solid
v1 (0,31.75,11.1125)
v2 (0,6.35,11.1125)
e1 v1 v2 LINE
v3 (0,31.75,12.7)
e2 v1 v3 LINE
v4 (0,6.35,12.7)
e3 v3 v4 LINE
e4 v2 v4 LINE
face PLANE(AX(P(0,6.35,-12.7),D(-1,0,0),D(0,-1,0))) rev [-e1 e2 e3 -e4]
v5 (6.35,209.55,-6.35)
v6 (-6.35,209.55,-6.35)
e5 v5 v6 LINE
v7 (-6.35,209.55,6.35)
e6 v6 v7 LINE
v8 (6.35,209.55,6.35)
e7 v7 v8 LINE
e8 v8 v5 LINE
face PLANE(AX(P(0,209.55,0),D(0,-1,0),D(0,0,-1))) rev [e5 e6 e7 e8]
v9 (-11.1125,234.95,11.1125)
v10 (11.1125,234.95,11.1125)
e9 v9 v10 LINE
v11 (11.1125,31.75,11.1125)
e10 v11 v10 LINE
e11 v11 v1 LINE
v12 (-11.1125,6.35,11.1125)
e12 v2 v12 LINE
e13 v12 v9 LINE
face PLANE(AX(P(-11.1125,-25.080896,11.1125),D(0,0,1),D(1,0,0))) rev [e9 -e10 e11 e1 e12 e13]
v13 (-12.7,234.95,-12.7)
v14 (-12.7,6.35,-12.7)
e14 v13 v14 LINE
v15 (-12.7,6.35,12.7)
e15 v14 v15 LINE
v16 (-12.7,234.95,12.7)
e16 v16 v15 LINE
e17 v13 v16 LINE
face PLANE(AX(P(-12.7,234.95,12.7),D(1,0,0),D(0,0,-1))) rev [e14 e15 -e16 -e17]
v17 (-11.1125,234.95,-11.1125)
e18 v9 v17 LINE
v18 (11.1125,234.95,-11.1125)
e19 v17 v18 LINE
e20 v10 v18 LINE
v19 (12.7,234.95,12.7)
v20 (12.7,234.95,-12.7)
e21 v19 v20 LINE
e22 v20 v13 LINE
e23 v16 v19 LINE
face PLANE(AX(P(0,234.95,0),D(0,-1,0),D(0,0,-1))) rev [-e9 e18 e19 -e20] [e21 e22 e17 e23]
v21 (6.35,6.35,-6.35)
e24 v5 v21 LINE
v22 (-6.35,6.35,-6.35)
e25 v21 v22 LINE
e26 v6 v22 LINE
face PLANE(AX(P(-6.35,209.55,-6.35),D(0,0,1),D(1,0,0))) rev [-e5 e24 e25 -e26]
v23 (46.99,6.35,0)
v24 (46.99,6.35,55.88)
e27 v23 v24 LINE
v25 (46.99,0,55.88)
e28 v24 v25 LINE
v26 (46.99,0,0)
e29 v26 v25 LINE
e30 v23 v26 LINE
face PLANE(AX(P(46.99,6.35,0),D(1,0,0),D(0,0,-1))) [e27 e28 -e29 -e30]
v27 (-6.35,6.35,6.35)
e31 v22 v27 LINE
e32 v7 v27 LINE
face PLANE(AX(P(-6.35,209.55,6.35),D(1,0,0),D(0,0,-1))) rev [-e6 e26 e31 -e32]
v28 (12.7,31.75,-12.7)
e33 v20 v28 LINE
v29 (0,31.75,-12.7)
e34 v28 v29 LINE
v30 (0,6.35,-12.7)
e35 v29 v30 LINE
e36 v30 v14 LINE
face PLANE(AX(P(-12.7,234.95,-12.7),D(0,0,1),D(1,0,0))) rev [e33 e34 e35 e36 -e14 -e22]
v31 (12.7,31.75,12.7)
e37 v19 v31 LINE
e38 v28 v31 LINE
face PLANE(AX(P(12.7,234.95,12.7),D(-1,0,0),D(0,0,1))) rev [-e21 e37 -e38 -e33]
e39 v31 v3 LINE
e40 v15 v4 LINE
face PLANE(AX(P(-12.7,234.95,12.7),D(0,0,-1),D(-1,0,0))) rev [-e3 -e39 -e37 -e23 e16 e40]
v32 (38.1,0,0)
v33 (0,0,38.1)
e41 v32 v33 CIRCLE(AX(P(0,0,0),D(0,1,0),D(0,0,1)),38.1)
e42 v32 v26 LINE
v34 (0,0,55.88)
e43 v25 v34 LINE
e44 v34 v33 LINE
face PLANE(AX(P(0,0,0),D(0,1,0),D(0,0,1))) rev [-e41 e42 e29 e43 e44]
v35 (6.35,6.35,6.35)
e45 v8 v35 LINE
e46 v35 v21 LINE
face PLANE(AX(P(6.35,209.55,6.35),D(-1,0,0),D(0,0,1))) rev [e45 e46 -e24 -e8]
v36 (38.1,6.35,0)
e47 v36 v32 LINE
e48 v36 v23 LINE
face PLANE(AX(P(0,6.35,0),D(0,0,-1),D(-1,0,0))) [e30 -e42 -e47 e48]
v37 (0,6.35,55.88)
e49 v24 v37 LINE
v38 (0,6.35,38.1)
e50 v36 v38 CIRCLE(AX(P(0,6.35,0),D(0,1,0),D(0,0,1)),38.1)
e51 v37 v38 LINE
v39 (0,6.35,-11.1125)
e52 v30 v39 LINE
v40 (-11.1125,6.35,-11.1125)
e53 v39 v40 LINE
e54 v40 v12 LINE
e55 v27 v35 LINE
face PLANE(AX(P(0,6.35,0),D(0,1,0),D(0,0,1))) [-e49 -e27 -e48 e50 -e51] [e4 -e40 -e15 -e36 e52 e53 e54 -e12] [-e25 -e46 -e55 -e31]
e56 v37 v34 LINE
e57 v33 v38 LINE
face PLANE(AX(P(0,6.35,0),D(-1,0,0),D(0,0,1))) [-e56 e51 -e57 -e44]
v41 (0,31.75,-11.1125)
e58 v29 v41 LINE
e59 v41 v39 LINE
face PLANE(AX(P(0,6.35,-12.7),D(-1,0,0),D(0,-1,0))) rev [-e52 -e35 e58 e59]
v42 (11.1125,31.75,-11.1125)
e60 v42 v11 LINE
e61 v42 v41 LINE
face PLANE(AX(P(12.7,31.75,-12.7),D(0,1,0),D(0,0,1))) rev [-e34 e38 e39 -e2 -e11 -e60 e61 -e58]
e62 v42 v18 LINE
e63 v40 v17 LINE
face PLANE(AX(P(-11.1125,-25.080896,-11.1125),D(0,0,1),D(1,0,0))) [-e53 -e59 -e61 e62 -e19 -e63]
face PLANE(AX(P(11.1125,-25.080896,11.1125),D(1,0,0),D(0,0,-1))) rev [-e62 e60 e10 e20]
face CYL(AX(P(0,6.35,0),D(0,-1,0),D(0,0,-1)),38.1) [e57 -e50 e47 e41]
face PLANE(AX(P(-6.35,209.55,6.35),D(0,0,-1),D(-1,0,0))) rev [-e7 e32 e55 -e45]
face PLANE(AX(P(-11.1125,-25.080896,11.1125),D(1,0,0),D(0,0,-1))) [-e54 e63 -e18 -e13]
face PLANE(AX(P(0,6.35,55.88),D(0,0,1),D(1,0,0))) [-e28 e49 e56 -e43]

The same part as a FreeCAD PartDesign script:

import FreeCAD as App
import Part
import Sketcher
Q = App.Units.Quantity

doc = App.newDocument("Part")
body = doc.addObject("PartDesign::Body", "Body")

sketch1 = body.newObject("Sketcher::SketchObject", "Sketch")
sketch1.AttachmentSupport = (doc.getObject("XZ_Plane"), [""])
sketch1.MapMode = "FlatFace"
sketch1.addGeometry(Part.Circle(App.Vector(0, 0, 0), App.Vector(0, 0, 1), 38), False)
sketch1.addConstraint([
    Sketcher.Constraint("Coincident", 0, 3, -1, 1),
    Sketcher.Constraint("Diameter", 0, Q("3 in")),
])
pad1 = body.newObject("PartDesign::Pad", "Pad")
pad1.Profile = sketch1
pad1.Length = Q("0.25 in")
pad1.Reversed = True

sketch2 = body.newObject("Sketcher::SketchObject", "Sketch001")
sketch2.AttachmentSupport = (doc.getObject("XZ_Plane"), [""])
sketch2.MapMode = "FlatFace"
sketch2.AttachmentOffset = App.Placement(App.Vector(0, 0, -0.25 * 25.4), App.Rotation())
sketch2.addGeometry([
    Part.LineSegment(App.Vector(-13, -13, 0), App.Vector(-13, 13, 0)),
    Part.LineSegment(App.Vector(-13, 13, 0), App.Vector(13, 13, 0)),
    Part.LineSegment(App.Vector(13, 13, 0), App.Vector(13, -13, 0)),
    Part.LineSegment(App.Vector(13, -13, 0), App.Vector(-13, -13, 0)),
], False)
sketch2.addConstraint([
    Sketcher.Constraint("Coincident", 0, 2, 1, 1),
    Sketcher.Constraint("Coincident", 1, 2, 2, 1),
    Sketcher.Constraint("Coincident", 2, 2, 3, 1),
    Sketcher.Constraint("Coincident", 3, 2, 0, 1),
    Sketcher.Constraint("Vertical", 0),
    Sketcher.Constraint("Horizontal", 1),
    Sketcher.Constraint("Vertical", 2),
    Sketcher.Constraint("Horizontal", 3),
    Sketcher.Constraint("Symmetric", 0, 2, 2, 2, -1, 1),
    Sketcher.Constraint("Equal", 3, 0),
    Sketcher.Constraint("DistanceX", 1, 1, 1, 2, Q("1 in")),
])
pad2 = body.newObject("PartDesign::Pad", "Pad001")
pad2.Profile = sketch2
pad2.Length = Q("9 in")
pad2.Reversed = True

sketch3 = body.newObject("Sketcher::SketchObject", "Sketch002")
sketch3.AttachmentSupport = (doc.getObject("XZ_Plane"), [""])
sketch3.MapMode = "FlatFace"
sketch3.AttachmentOffset = App.Placement(App.Vector(0, 0, -9.25 * 25.4), App.Rotation())
sketch3.addGeometry([
    Part.LineSegment(App.Vector(-11, -11, 0), App.Vector(-11, 11, 0)),
    Part.LineSegment(App.Vector(-11, 11, 0), App.Vector(11, 11, 0)),
    Part.LineSegment(App.Vector(11, 11, 0), App.Vector(11, -11, 0)),
    Part.LineSegment(App.Vector(11, -11, 0), App.Vector(-11, -11, 0)),
], False)
sketch3.addConstraint([
    Sketcher.Constraint("Coincident", 0, 2, 1, 1),
    Sketcher.Constraint("Coincident", 1, 2, 2, 1),
    Sketcher.Constraint("Coincident", 2, 2, 3, 1),
    Sketcher.Constraint("Coincident", 3, 2, 0, 1),
    Sketcher.Constraint("Vertical", 0),
    Sketcher.Constraint("Horizontal", 1),
    Sketcher.Constraint("Vertical", 2),
    Sketcher.Constraint("Horizontal", 3),
    Sketcher.Constraint("Symmetric", 0, 2, 2, 2, -1, 1),
    Sketcher.Constraint("Equal", 3, 0),
    Sketcher.Constraint("DistanceX", 1, 1, 1, 2, Q("0.875 in")),
])
pocket1 = body.newObject("PartDesign::Pocket", "Pocket")
pocket1.Profile = sketch3
pocket1.Length = Q("9 in")
pocket1.Reversed = True

sketch4 = body.newObject("Sketcher::SketchObject", "Sketch003")
sketch4.AttachmentSupport = (doc.getObject("XY_Plane"), [""])
sketch4.MapMode = "FlatFace"
sketch4.AttachmentOffset = App.Placement(App.Vector(0, 0, 0.5 * 25.4), App.Rotation())
sketch4.addGeometry([
    Part.LineSegment(App.Vector(0, 32, 0), App.Vector(0, 6, 0)),
    Part.LineSegment(App.Vector(0, 6, 0), App.Vector(13, 6, 0)),
    Part.LineSegment(App.Vector(13, 6, 0), App.Vector(13, 32, 0)),
    Part.LineSegment(App.Vector(13, 32, 0), App.Vector(0, 32, 0)),
], False)
sketch4.addConstraint([
    Sketcher.Constraint("Coincident", 0, 2, 1, 1),
    Sketcher.Constraint("Coincident", 1, 2, 2, 1),
    Sketcher.Constraint("Coincident", 2, 2, 3, 1),
    Sketcher.Constraint("Coincident", 3, 2, 0, 1),
    Sketcher.Constraint("Vertical", 0),
    Sketcher.Constraint("Horizontal", 1),
    Sketcher.Constraint("Vertical", 2),
    Sketcher.Constraint("Horizontal", 3),
    Sketcher.Constraint("PointOnObject", 0, 2, -2),
    Sketcher.Constraint("DistanceY", 0, 2, 0, 1, Q("1 in")),
    Sketcher.Constraint("DistanceX", 1, 1, 1, 2, Q("0.5 in")),
    Sketcher.Constraint("DistanceY", -1, 1, 0, 2, Q("0.25 in")),
])
pocket2 = body.newObject("PartDesign::Pocket", "Pocket001")
pocket2.Profile = sketch4
pocket2.Length = Q("1 in")

sketch5 = body.newObject("Sketcher::SketchObject", "Sketch004")
sketch5.AttachmentSupport = (doc.getObject("XZ_Plane"), [""])
sketch5.MapMode = "FlatFace"
sketch5.AttachmentOffset = App.Placement(App.Vector(0, 0, -0.25 * 25.4), App.Rotation())
sketch5.addGeometry([
    Part.LineSegment(App.Vector(-6, -6, 0), App.Vector(-6, 6, 0)),
    Part.LineSegment(App.Vector(-6, 6, 0), App.Vector(6, 6, 0)),
    Part.LineSegment(App.Vector(6, 6, 0), App.Vector(6, -6, 0)),
    Part.LineSegment(App.Vector(6, -6, 0), App.Vector(-6, -6, 0)),
], False)
sketch5.addConstraint([
    Sketcher.Constraint("Coincident", 0, 2, 1, 1),
    Sketcher.Constraint("Coincident", 1, 2, 2, 1),
    Sketcher.Constraint("Coincident", 2, 2, 3, 1),
    Sketcher.Constraint("Coincident", 3, 2, 0, 1),
    Sketcher.Constraint("Vertical", 0),
    Sketcher.Constraint("Horizontal", 1),
    Sketcher.Constraint("Vertical", 2),
    Sketcher.Constraint("Horizontal", 3),
    Sketcher.Constraint("Symmetric", 0, 2, 2, 2, -1, 1),
    Sketcher.Constraint("Equal", 3, 0),
    Sketcher.Constraint("DistanceX", 1, 1, 1, 2, Q("0.5 in")),
])
pad3 = body.newObject("PartDesign::Pad", "Pad002")
pad3.Profile = sketch5
pad3.Length = Q("8 in")
pad3.Reversed = True

sketch6 = body.newObject("Sketcher::SketchObject", "Sketch005")
sketch6.AttachmentSupport = (doc.getObject("XZ_Plane"), [""])
sketch6.MapMode = "FlatFace"
sketch6.addGeometry([
    Part.LineSegment(App.Vector(0, 56, 0), App.Vector(0, 0, 0)),
    Part.LineSegment(App.Vector(0, 0, 0), App.Vector(47, 0, 0)),
    Part.LineSegment(App.Vector(47, 0, 0), App.Vector(47, 56, 0)),
    Part.LineSegment(App.Vector(47, 56, 0), App.Vector(0, 56, 0)),
], False)
sketch6.addConstraint([
    Sketcher.Constraint("Coincident", 0, 2, 1, 1),
    Sketcher.Constraint("Coincident", 1, 2, 2, 1),
    Sketcher.Constraint("Coincident", 2, 2, 3, 1),
    Sketcher.Constraint("Coincident", 3, 2, 0, 1),
    Sketcher.Constraint("Vertical", 0),
    Sketcher.Constraint("Horizontal", 1),
    Sketcher.Constraint("Vertical", 2),
    Sketcher.Constraint("Horizontal", 3),
    Sketcher.Constraint("Coincident", 0, 2, -1, 1),
    Sketcher.Constraint("DistanceY", 0, 2, 0, 1, Q("2.2 in")),
    Sketcher.Constraint("DistanceX", 1, 1, 1, 2, Q("1.85 in")),
])
pad4 = body.newObject("PartDesign::Pad", "Pad003")
pad4.Profile = sketch6
pad4.Length = Q("0.25 in")
pad4.Reversed = True

doc.recompute()
